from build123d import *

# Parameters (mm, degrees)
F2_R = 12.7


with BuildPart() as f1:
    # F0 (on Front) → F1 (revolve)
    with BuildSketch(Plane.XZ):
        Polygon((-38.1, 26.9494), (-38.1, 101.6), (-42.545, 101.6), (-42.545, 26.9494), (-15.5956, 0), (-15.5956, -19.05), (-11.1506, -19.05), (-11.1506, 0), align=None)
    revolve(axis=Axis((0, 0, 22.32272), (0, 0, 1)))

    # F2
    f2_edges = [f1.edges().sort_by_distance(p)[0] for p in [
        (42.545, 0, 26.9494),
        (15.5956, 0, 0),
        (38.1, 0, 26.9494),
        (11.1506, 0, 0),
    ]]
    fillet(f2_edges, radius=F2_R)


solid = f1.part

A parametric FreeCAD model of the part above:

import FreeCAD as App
import Part
import Sketcher
Q = App.Units.Quantity


def edges_at(feature, points):
    """Names of the edges that pass closest to the given points."""
    edges = feature.Shape.Edges
    near = lambda p: min(range(len(edges)), key=lambda i: edges[i].distToShape(Part.Vertex(*p))[0])
    return sorted({f"Edge{near(p) + 1}" for p in points})

doc = App.newDocument("Part")
params = doc.addObject("Spreadsheet::Sheet", "Params")
for row, (alias, value) in enumerate([
    ("sketch1_height", "0.75 in"),
    ("sketch1_width", "0.175 in"),
    ("sketch1_height2", "2.939 in"),
    ("revolution_angle", "360 deg"),
    ("fillet_radius", "0.5 in"),
], start=1):
    params.set(f"A{row}", alias)
    params.set(f"B{row}", "=" + value)
    params.setAlias(f"B{row}", alias)

body = doc.addObject("PartDesign::Body", "Body")

# Sketch on XZ plane
sketch1 = body.newObject("Sketcher::SketchObject", "Sketch")
sketch1.AttachmentSupport = (doc.getObject("XZ_Plane"), [""])
sketch1.MapMode = "FlatFace"
sketch1.addGeometry([
    Part.LineSegment(App.Vector(-38.1, 26.9494, 0), App.Vector(-38.1, 101.6, 0)),  # 0
    Part.LineSegment(App.Vector(-38.1, 101.6, 0), App.Vector(-42.545, 101.6, 0)),  # 1
    Part.LineSegment(App.Vector(-42.545, 101.6, 0), App.Vector(-42.545, 26.9494, 0)),  # 2
    Part.LineSegment(App.Vector(-42.545, 26.9494, 0), App.Vector(-15.5956, 0, 0)),  # 3
    Part.LineSegment(App.Vector(-15.5956, 0, 0), App.Vector(-15.5956, -19.05, 0)),  # 4
    Part.LineSegment(App.Vector(-15.5956, -19.05, 0), App.Vector(-11.1506, -19.05, 0)),  # 5
    Part.LineSegment(App.Vector(-11.1506, -19.05, 0), App.Vector(-11.1506, 0, 0)),  # 6
    Part.LineSegment(App.Vector(-11.1506, 0, 0), App.Vector(-38.1, 26.9494, 0)),  # 7
], False)
sketch1.addConstraint([
    Sketcher.Constraint("Coincident", 0, 2, 1, 1),
    Sketcher.Constraint("Coincident", 1, 2, 2, 1),
    Sketcher.Constraint("Coincident", 2, 2, 3, 1),
    Sketcher.Constraint("Coincident", 3, 2, 4, 1),
    Sketcher.Constraint("Coincident", 4, 2, 5, 1),
    Sketcher.Constraint("Coincident", 5, 2, 6, 1),
    Sketcher.Constraint("Coincident", 6, 2, 7, 1),
    Sketcher.Constraint("Coincident", 7, 2, 0, 1),
    Sketcher.Constraint("Vertical", 0),
    Sketcher.Constraint("Horizontal", 1),
    Sketcher.Constraint("Vertical", 2),
    Sketcher.Constraint("Vertical", 4),
    Sketcher.Constraint("Horizontal", 5),
    Sketcher.Constraint("Vertical", 6),
    Sketcher.Constraint("PointOnObject", 3, 2, -1),
    Sketcher.Constraint("PointOnObject", 6, 2, -1),
    Sketcher.Constraint("Parallel", 3, 7),
    Sketcher.Constraint("Horizontal", 2, 2, 7, 2),
    Sketcher.Constraint("DistanceY", -1, 1, 0, 2, Q("4 in")),
    Sketcher.Constraint("Angle", 3, Q("-45 deg")),
    Sketcher.Constraint("DistanceY", 4, 2, 4, 1, Q("0.75 in")),
    Sketcher.Constraint("DistanceX", 0, 2, -1, 1, Q("1.5 in")),
    Sketcher.Constraint("DistanceX", 1, 2, 1, 1, Q("0.175 in")),
    Sketcher.Constraint("DistanceY", 0, 1, 0, 2, Q("2.939 in")),
])
sketch1.setExpression("Constraints[20]", "Params.sketch1_height")
sketch1.setExpression("Constraints[22]", "Params.sketch1_width")
sketch1.setExpression("Constraints[23]", "Params.sketch1_height2")
revolution = body.newObject("PartDesign::Revolution", "Revolution")
revolution.Profile = sketch1
revolution.ReferenceAxis = (sketch1, ["V_Axis"])
revolution.setExpression("Angle", "Params.revolution_angle")
doc.recompute()

fillet = body.newObject("PartDesign::Fillet", "Fillet")
fillet.Base = (revolution, edges_at(revolution, [
    (42.545, 0, 26.949),
    (15.596, 0, 0),
    (38.1, 0, 26.949),
    (11.151, 0, 0),
]))
fillet.setExpression("Radius", "Params.fillet_radius")

doc.recompute()
